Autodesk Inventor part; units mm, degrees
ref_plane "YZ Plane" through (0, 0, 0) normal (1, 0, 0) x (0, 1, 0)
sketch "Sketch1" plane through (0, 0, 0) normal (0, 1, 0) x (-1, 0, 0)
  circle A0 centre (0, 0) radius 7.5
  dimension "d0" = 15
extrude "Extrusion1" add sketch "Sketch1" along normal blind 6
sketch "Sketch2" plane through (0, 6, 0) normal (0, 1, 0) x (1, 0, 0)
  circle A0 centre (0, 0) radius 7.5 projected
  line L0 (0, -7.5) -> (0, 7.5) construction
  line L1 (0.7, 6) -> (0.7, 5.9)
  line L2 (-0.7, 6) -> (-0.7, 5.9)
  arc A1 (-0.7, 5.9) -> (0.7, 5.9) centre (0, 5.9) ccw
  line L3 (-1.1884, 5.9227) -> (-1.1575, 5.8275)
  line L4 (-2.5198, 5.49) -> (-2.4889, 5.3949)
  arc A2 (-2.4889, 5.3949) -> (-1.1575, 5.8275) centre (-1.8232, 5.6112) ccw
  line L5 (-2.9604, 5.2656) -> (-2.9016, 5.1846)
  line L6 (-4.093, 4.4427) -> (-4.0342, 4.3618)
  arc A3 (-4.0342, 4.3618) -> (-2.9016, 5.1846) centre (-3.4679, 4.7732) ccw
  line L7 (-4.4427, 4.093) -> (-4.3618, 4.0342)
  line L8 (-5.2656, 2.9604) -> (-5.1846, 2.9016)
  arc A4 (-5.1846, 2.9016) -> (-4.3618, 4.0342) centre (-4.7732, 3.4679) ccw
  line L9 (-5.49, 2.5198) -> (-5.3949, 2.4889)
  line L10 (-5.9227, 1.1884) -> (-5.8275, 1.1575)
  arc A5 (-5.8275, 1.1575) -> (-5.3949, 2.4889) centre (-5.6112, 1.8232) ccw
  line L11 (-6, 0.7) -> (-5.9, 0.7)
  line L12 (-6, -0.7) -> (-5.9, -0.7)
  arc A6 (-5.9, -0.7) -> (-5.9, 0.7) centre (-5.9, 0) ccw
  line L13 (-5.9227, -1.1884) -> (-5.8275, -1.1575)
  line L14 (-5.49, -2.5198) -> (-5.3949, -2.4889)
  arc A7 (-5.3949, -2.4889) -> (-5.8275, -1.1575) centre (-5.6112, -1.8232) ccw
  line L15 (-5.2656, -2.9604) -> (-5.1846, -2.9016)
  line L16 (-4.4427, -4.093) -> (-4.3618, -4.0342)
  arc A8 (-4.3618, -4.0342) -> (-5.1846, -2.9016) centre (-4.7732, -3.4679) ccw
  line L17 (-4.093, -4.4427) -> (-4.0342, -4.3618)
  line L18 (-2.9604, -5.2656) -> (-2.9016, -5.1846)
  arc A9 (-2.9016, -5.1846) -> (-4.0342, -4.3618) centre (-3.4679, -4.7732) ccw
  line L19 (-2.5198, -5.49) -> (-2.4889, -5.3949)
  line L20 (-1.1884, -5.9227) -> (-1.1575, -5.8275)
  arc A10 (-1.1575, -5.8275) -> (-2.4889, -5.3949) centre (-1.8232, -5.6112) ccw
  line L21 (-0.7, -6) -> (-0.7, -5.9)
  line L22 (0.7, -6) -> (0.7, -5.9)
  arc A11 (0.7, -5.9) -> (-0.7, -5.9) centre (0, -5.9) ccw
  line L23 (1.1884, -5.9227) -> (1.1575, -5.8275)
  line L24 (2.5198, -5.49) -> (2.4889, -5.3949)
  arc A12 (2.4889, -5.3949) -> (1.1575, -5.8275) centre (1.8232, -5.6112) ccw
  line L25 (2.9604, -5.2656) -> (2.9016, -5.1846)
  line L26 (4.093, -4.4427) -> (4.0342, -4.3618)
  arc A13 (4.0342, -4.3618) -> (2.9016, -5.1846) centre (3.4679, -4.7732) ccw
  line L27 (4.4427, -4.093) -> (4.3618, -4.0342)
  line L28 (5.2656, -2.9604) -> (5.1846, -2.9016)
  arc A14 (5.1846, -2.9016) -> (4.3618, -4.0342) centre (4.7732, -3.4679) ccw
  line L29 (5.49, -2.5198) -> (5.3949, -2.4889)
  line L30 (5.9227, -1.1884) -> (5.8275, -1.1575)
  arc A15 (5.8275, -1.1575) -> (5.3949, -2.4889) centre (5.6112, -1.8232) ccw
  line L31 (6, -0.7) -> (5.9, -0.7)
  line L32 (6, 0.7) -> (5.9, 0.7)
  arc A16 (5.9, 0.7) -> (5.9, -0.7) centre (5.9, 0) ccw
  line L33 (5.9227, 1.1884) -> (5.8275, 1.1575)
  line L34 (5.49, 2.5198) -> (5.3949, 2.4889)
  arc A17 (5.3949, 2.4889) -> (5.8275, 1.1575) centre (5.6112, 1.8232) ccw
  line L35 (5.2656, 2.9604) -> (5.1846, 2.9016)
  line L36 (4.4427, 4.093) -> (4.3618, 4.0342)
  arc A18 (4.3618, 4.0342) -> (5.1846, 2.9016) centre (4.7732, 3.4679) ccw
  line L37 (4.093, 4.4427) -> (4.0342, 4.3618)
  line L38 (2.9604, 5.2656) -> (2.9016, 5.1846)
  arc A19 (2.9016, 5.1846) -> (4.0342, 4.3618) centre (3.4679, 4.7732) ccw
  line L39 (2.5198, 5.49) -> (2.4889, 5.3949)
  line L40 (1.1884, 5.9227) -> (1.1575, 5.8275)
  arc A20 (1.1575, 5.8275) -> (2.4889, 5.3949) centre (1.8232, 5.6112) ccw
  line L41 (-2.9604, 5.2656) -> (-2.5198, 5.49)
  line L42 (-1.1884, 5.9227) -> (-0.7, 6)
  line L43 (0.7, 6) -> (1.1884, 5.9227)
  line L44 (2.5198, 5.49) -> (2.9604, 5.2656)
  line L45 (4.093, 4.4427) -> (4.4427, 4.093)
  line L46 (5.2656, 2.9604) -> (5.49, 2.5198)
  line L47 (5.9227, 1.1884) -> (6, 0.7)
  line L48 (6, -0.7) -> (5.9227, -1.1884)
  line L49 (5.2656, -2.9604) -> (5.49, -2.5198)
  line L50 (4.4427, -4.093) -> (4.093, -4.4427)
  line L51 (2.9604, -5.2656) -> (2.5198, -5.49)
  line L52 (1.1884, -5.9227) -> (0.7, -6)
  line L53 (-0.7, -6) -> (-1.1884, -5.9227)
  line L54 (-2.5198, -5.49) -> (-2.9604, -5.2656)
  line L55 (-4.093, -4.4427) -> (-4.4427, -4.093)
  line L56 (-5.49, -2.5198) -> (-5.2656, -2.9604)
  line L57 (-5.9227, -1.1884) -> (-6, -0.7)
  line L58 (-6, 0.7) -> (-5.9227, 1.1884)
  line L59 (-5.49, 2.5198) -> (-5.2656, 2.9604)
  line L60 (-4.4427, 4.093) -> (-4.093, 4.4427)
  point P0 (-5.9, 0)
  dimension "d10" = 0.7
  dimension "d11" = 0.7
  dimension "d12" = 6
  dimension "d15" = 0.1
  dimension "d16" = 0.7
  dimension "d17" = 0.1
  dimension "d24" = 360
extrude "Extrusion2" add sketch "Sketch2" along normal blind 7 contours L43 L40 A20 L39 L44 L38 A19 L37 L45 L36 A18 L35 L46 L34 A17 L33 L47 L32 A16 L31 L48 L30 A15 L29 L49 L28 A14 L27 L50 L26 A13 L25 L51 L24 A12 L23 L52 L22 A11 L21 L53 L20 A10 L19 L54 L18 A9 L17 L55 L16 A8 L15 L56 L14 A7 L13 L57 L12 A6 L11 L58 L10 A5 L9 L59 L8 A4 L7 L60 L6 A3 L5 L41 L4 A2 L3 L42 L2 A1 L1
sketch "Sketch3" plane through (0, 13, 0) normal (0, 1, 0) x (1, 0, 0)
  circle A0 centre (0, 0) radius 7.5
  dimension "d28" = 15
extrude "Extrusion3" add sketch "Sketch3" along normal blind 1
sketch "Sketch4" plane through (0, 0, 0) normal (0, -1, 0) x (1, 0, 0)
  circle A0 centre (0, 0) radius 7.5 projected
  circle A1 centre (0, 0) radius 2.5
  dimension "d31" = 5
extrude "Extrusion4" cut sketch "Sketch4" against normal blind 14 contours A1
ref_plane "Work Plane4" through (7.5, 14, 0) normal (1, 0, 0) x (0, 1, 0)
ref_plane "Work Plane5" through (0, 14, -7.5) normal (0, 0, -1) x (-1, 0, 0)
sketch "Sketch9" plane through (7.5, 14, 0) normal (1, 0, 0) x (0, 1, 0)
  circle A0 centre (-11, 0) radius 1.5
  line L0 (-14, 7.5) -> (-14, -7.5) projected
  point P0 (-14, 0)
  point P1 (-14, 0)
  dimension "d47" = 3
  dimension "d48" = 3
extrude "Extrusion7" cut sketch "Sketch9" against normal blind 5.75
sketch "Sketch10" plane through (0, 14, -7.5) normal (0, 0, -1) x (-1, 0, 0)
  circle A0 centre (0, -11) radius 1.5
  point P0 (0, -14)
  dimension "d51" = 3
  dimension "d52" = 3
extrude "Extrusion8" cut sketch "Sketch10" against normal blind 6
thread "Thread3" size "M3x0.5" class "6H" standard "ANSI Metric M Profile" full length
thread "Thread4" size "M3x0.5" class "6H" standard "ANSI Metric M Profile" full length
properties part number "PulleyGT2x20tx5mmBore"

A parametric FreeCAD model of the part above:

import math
import FreeCAD as App
import Part
import Sketcher

V = App.Vector
Q = App.Units.Quantity

doc = App.newDocument("Part")
body = doc.addObject("PartDesign::Body", "Body")

# Sketch on XZ plane
sketch1 = doc.addObject("Sketcher::SketchObject", "Sketch")
body.addObject(sketch1)
sketch1.AttachmentSupport = (doc.XZ_Plane, [""])
sketch1.MapMode = "FlatFace"
sketch1.addGeometry(Part.Circle(V(0, 0, 0), V(0, 0, 1), 8), False)
sketch1.addConstraint([
    Sketcher.Constraint("Coincident", 0, 3, -1, 1),
    Sketcher.Constraint("Diameter", 0, 15.0),
])
pad1 = doc.addObject("PartDesign::Pad", "Pad")
body.addObject(pad1)
pad1.Profile = sketch1
pad1.Length = 6
pad1.Reversed = True

# Sketch on XZ plane
sketch2 = doc.addObject("Sketcher::SketchObject", "Sketch001")
body.addObject(sketch2)
sketch2.AttachmentSupport = (doc.XZ_Plane, [""])
sketch2.MapMode = "FlatFace"
sketch2.AttachmentOffset = App.Placement(V(0, 0, -6), App.Rotation())
sketch2.addGeometry([
    Part.LineSegment(V(1.19, -5.92, 0), V(0.7, -6, 0)),  # 0
    Part.LineSegment(V(0.7, -6, 0), V(0.7, -5.9, 0)),  # 1
    Part.ArcOfCircle(Part.Circle(V(0, -5.9, 0), V(0, 0, 1), 0.7), math.radians(0), math.radians(180)),  # 2
    Part.LineSegment(V(-0.7, -5.9, 0), V(-0.7, -6, 0)),  # 3
    Part.LineSegment(V(-0.7, -6, 0), V(-1.19, -5.92, 0)),  # 4
    Part.LineSegment(V(-1.19, -5.92, 0), V(-1.16, -5.83, 0)),  # 5
    Part.ArcOfCircle(Part.Circle(V(-1.82, -5.61, 0), V(0, 0, 1), 0.7), math.radians(-18), math.radians(162)),  # 6
    Part.LineSegment(V(-2.49, -5.39, 0), V(-2.52, -5.49, 0)),  # 7
    Part.LineSegment(V(-2.52, -5.49, 0), V(-2.96, -5.27, 0)),  # 8
    Part.LineSegment(V(-2.96, -5.27, 0), V(-2.9, -5.18, 0)),  # 9
    Part.ArcOfCircle(Part.Circle(V(-3.47, -4.77, 0), V(0, 0, 1), 0.7), math.radians(-36), math.radians(144)),  # 10
    Part.LineSegment(V(-4.03, -4.36, 0), V(-4.09, -4.44, 0)),  # 11
    Part.LineSegment(V(-4.09, -4.44, 0), V(-4.44, -4.09, 0)),  # 12
    Part.LineSegment(V(-4.44, -4.09, 0), V(-4.36, -4.03, 0)),  # 13
    Part.ArcOfCircle(Part.Circle(V(-4.77, -3.47, 0), V(0, 0, 1), 0.7), math.radians(-54), math.radians(126)),  # 14
    Part.LineSegment(V(-5.18, -2.9, 0), V(-5.27, -2.96, 0)),  # 15
    Part.LineSegment(V(-5.27, -2.96, 0), V(-5.49, -2.52, 0)),  # 16
    Part.LineSegment(V(-5.49, -2.52, 0), V(-5.39, -2.49, 0)),  # 17
    Part.ArcOfCircle(Part.Circle(V(-5.61, -1.82, 0), V(0, 0, 1), 0.7), math.radians(-72), math.radians(108)),  # 18
    Part.LineSegment(V(-5.83, -1.16, 0), V(-5.92, -1.19, 0)),  # 19
    Part.LineSegment(V(-5.92, -1.19, 0), V(-6, -0.7, 0)),  # 20
    Part.LineSegment(V(-6, -0.7, 0), V(-5.9, -0.7, 0)),  # 21
    Part.ArcOfCircle(Part.Circle(V(-5.9, 0, 0), V(0, 0, 1), 0.7), math.radians(-90), math.radians(90)),  # 22
    Part.LineSegment(V(-5.9, 0.7, 0), V(-6, 0.7, 0)),  # 23
    Part.LineSegment(V(-6, 0.7, 0), V(-5.92, 1.19, 0)),  # 24
    Part.LineSegment(V(-5.92, 1.19, 0), V(-5.83, 1.16, 0)),  # 25
    Part.ArcOfCircle(Part.Circle(V(-5.61, 1.82, 0), V(0, 0, 1), 0.7), math.radians(-108), math.radians(72)),  # 26
    Part.LineSegment(V(-5.39, 2.49, 0), V(-5.49, 2.52, 0)),  # 27
    Part.LineSegment(V(-5.49, 2.52, 0), V(-5.27, 2.96, 0)),  # 28
    Part.LineSegment(V(-5.27, 2.96, 0), V(-5.18, 2.9, 0)),  # 29
    Part.ArcOfCircle(Part.Circle(V(-4.77, 3.47, 0), V(0, 0, 1), 0.7), math.radians(-126), math.radians(54)),  # 30
    Part.LineSegment(V(-4.36, 4.03, 0), V(-4.44, 4.09, 0)),  # 31
    Part.LineSegment(V(-4.44, 4.09, 0), V(-4.09, 4.44, 0)),  # 32
    Part.LineSegment(V(-4.09, 4.44, 0), V(-4.03, 4.36, 0)),  # 33
    Part.ArcOfCircle(Part.Circle(V(-3.47, 4.77, 0), V(0, 0, 1), 0.7), math.radians(-144), math.radians(36)),  # 34
    Part.LineSegment(V(-2.9, 5.18, 0), V(-2.96, 5.27, 0)),  # 35
    Part.LineSegment(V(-2.96, 5.27, 0), V(-2.52, 5.49, 0)),  # 36
    Part.LineSegment(V(-2.52, 5.49, 0), V(-2.49, 5.39, 0)),  # 37
    Part.ArcOfCircle(Part.Circle(V(-1.82, 5.61, 0), V(0, 0, 1), 0.7), math.radians(-162), math.radians(18)),  # 38
    Part.LineSegment(V(-1.16, 5.83, 0), V(-1.19, 5.92, 0)),  # 39
    Part.LineSegment(V(-1.19, 5.92, 0), V(-0.7, 6, 0)),  # 40
    Part.LineSegment(V(-0.7, 6, 0), V(-0.7, 5.9, 0)),  # 41
    Part.ArcOfCircle(Part.Circle(V(0, 5.9, 0), V(0, 0, 1), 0.7), math.radians(180), math.radians(360)),  # 42
    Part.LineSegment(V(0.7, 5.9, 0), V(0.7, 6, 0)),  # 43
    Part.LineSegment(V(0.7, 6, 0), V(1.19, 5.92, 0)),  # 44
    Part.LineSegment(V(1.19, 5.92, 0), V(1.16, 5.83, 0)),  # 45
    Part.ArcOfCircle(Part.Circle(V(1.82, 5.61, 0), V(0, 0, 1), 0.7), math.radians(162), math.radians(342)),  # 46
    Part.LineSegment(V(2.49, 5.39, 0), V(2.52, 5.49, 0)),  # 47
    Part.LineSegment(V(2.52, 5.49, 0), V(2.96, 5.27, 0)),  # 48
    Part.LineSegment(V(2.96, 5.27, 0), V(2.9, 5.18, 0)),  # 49
    Part.ArcOfCircle(Part.Circle(V(3.47, 4.77, 0), V(0, 0, 1), 0.7), math.radians(144), math.radians(324)),  # 50
    Part.LineSegment(V(4.03, 4.36, 0), V(4.09, 4.44, 0)),  # 51
    Part.LineSegment(V(4.09, 4.44, 0), V(4.44, 4.09, 0)),  # 52
    Part.LineSegment(V(4.44, 4.09, 0), V(4.36, 4.03, 0)),  # 53
    Part.ArcOfCircle(Part.Circle(V(4.77, 3.47, 0), V(0, 0, 1), 0.7), math.radians(126), math.radians(306)),  # 54
    Part.LineSegment(V(5.18, 2.9, 0), V(5.27, 2.96, 0)),  # 55
    Part.LineSegment(V(5.27, 2.96, 0), V(5.49, 2.52, 0)),  # 56
    Part.LineSegment(V(5.49, 2.52, 0), V(5.39, 2.49, 0)),  # 57
    Part.ArcOfCircle(Part.Circle(V(5.61, 1.82, 0), V(0, 0, 1), 0.7), math.radians(108), math.radians(288)),  # 58
    Part.LineSegment(V(5.83, 1.16, 0), V(5.92, 1.19, 0)),  # 59
    Part.LineSegment(V(5.92, 1.19, 0), V(6, 0.7, 0)),  # 60
    Part.LineSegment(V(6, 0.7, 0), V(5.9, 0.7, 0)),  # 61
    Part.ArcOfCircle(Part.Circle(V(5.9, 0, 0), V(0, 0, 1), 0.7), math.radians(90), math.radians(270)),  # 62
    Part.LineSegment(V(5.9, -0.7, 0), V(6, -0.7, 0)),  # 63
    Part.LineSegment(V(6, -0.7, 0), V(5.92, -1.19, 0)),  # 64
    Part.LineSegment(V(5.92, -1.19, 0), V(5.83, -1.16, 0)),  # 65
    Part.ArcOfCircle(Part.Circle(V(5.61, -1.82, 0), V(0, 0, 1), 0.7), math.radians(72), math.radians(252)),  # 66
    Part.LineSegment(V(5.39, -2.49, 0), V(5.49, -2.52, 0)),  # 67
    Part.LineSegment(V(5.49, -2.52, 0), V(5.27, -2.96, 0)),  # 68
    Part.LineSegment(V(5.27, -2.96, 0), V(5.18, -2.9, 0)),  # 69
    Part.ArcOfCircle(Part.Circle(V(4.77, -3.47, 0), V(0, 0, 1), 0.7), math.radians(54), math.radians(234)),  # 70
    Part.LineSegment(V(4.36, -4.03, 0), V(4.44, -4.09, 0)),  # 71
    Part.LineSegment(V(4.44, -4.09, 0), V(4.09, -4.44, 0)),  # 72
    Part.LineSegment(V(4.09, -4.44, 0), V(4.03, -4.36, 0)),  # 73
    Part.ArcOfCircle(Part.Circle(V(3.47, -4.77, 0), V(0, 0, 1), 0.7), math.radians(36), math.radians(216)),  # 74
    Part.LineSegment(V(2.9, -5.18, 0), V(2.96, -5.27, 0)),  # 75
    Part.LineSegment(V(2.96, -5.27, 0), V(2.52, -5.49, 0)),  # 76
    Part.LineSegment(V(2.52, -5.49, 0), V(2.49, -5.39, 0)),  # 77
    Part.ArcOfCircle(Part.Circle(V(1.82, -5.61, 0), V(0, 0, 1), 0.7), math.radians(18), math.radians(198)),  # 78
    Part.LineSegment(V(1.16, -5.83, 0), V(1.19, -5.92, 0)),  # 79
], False)
sketch2.addConstraint([
    Sketcher.Constraint("Coincident", 0, 2, 1, 1),
    Sketcher.Constraint("Tangent", 1, 2, 2, 1),
    Sketcher.Constraint("Tangent", 2, 2, 3, 1),
    Sketcher.Constraint("Coincident", 3, 2, 4, 1),
    Sketcher.Constraint("Coincident", 4, 2, 5, 1),
    Sketcher.Constraint("Tangent", 5, 2, 6, 1),
    Sketcher.Constraint("Tangent", 6, 2, 7, 1),
    Sketcher.Constraint("Coincident", 7, 2, 8, 1),
    Sketcher.Constraint("Coincident", 8, 2, 9, 1),
    Sketcher.Constraint("Tangent", 9, 2, 10, 1),
    Sketcher.Constraint("Tangent", 10, 2, 11, 1),
    Sketcher.Constraint("Coincident", 11, 2, 12, 1),
    Sketcher.Constraint("Coincident", 12, 2, 13, 1),
    Sketcher.Constraint("Tangent", 13, 2, 14, 1),
    Sketcher.Constraint("Tangent", 14, 2, 15, 1),
    Sketcher.Constraint("Coincident", 15, 2, 16, 1),
    Sketcher.Constraint("Coincident", 16, 2, 17, 1),
    Sketcher.Constraint("Tangent", 17, 2, 18, 1),
    Sketcher.Constraint("Tangent", 18, 2, 19, 1),
    Sketcher.Constraint("Coincident", 19, 2, 20, 1),
    Sketcher.Constraint("Coincident", 20, 2, 21, 1),
    Sketcher.Constraint("Tangent", 21, 2, 22, 1),
    Sketcher.Constraint("Tangent", 22, 2, 23, 1),
    Sketcher.Constraint("Coincident", 23, 2, 24, 1),
    Sketcher.Constraint("Coincident", 24, 2, 25, 1),
    Sketcher.Constraint("Tangent", 25, 2, 26, 1),
    Sketcher.Constraint("Tangent", 26, 2, 27, 1),
    Sketcher.Constraint("Coincident", 27, 2, 28, 1),
    Sketcher.Constraint("Coincident", 28, 2, 29, 1),
    Sketcher.Constraint("Tangent", 29, 2, 30, 1),
    Sketcher.Constraint("Tangent", 30, 2, 31, 1),
    Sketcher.Constraint("Coincident", 31, 2, 32, 1),
    Sketcher.Constraint("Coincident", 32, 2, 33, 1),
    Sketcher.Constraint("Tangent", 33, 2, 34, 1),
    Sketcher.Constraint("Tangent", 34, 2, 35, 1),
    Sketcher.Constraint("Coincident", 35, 2, 36, 1),
    Sketcher.Constraint("Coincident", 36, 2, 37, 1),
    Sketcher.Constraint("Tangent", 37, 2, 38, 1),
    Sketcher.Constraint("Tangent", 38, 2, 39, 1),
    Sketcher.Constraint("Coincident", 39, 2, 40, 1),
    Sketcher.Constraint("Coincident", 40, 2, 41, 1),
    Sketcher.Constraint("Tangent", 41, 2, 42, 1),
    Sketcher.Constraint("Tangent", 42, 2, 43, 1),
    Sketcher.Constraint("Coincident", 43, 2, 44, 1),
    Sketcher.Constraint("Coincident", 44, 2, 45, 1),
    Sketcher.Constraint("Tangent", 45, 2, 46, 1),
    Sketcher.Constraint("Tangent", 46, 2, 47, 1),
    Sketcher.Constraint("Coincident", 47, 2, 48, 1),
    Sketcher.Constraint("Coincident", 48, 2, 49, 1),
    Sketcher.Constraint("Tangent", 49, 2, 50, 1),
    Sketcher.Constraint("Tangent", 50, 2, 51, 1),
    Sketcher.Constraint("Coincident", 51, 2, 52, 1),
    Sketcher.Constraint("Coincident", 52, 2, 53, 1),
    Sketcher.Constraint("Tangent", 53, 2, 54, 1),
    Sketcher.Constraint("Tangent", 54, 2, 55, 1),
    Sketcher.Constraint("Coincident", 55, 2, 56, 1),
    Sketcher.Constraint("Coincident", 56, 2, 57, 1),
    Sketcher.Constraint("Tangent", 57, 2, 58, 1),
    Sketcher.Constraint("Tangent", 58, 2, 59, 1),
    Sketcher.Constraint("Coincident", 59, 2, 60, 1),
    Sketcher.Constraint("Coincident", 60, 2, 61, 1),
    Sketcher.Constraint("Tangent", 61, 2, 62, 1),
    Sketcher.Constraint("Tangent", 62, 2, 63, 1),
    Sketcher.Constraint("Coincident", 63, 2, 64, 1),
    Sketcher.Constraint("Coincident", 64, 2, 65, 1),
    Sketcher.Constraint("Tangent", 65, 2, 66, 1),
    Sketcher.Constraint("Tangent", 66, 2, 67, 1),
    Sketcher.Constraint("Coincident", 67, 2, 68, 1),
    Sketcher.Constraint("Coincident", 68, 2, 69, 1),
    Sketcher.Constraint("Tangent", 69, 2, 70, 1),
    Sketcher.Constraint("Tangent", 70, 2, 71, 1),
    Sketcher.Constraint("Coincident", 71, 2, 72, 1),
    Sketcher.Constraint("Coincident", 72, 2, 73, 1),
    Sketcher.Constraint("Tangent", 73, 2, 74, 1),
    Sketcher.Constraint("Tangent", 74, 2, 75, 1),
    Sketcher.Constraint("Coincident", 75, 2, 76, 1),
    Sketcher.Constraint("Coincident", 76, 2, 77, 1),
    Sketcher.Constraint("Tangent", 77, 2, 78, 1),
    Sketcher.Constraint("Tangent", 78, 2, 79, 1),
    Sketcher.Constraint("Coincident", 79, 2, 0, 1),
    Sketcher.Constraint("Vertical", 1),
    Sketcher.Constraint("Vertical", 3),
    Sketcher.Constraint("Horizontal", 21),
    Sketcher.Constraint("Horizontal", 23),
    Sketcher.Constraint("Vertical", 41),
    Sketcher.Constraint("Vertical", 43),
    Sketcher.Constraint("Horizontal", 61),
    Sketcher.Constraint("Horizontal", 63),
    Sketcher.Constraint("Equal", 2, 6),
    Sketcher.Constraint("Equal", 6, 10),
    Sketcher.Constraint("Equal", 10, 14),
    Sketcher.Constraint("Equal", 14, 18),
    Sketcher.Constraint("Equal", 18, 22),
    Sketcher.Constraint("Equal", 22, 26),
    Sketcher.Constraint("Equal", 26, 30),
    Sketcher.Constraint("Equal", 30, 34),
    Sketcher.Constraint("Equal", 34, 38),
    Sketcher.Constraint("Equal", 38, 42),
    Sketcher.Constraint("Equal", 42, 46),
    Sketcher.Constraint("Equal", 46, 50),
    Sketcher.Constraint("Equal", 50, 54),
    Sketcher.Constraint("Equal", 54, 58),
    Sketcher.Constraint("Equal", 58, 62),
    Sketcher.Constraint("Equal", 62, 66),
    Sketcher.Constraint("Equal", 66, 70),
    Sketcher.Constraint("Equal", 70, 74),
    Sketcher.Constraint("Equal", 74, 78),
    Sketcher.Constraint("Symmetric", 2, 3, 42, 3, -1, 1),
    Sketcher.Constraint("Symmetric", 6, 3, 46, 3, -1, 1),
    Sketcher.Constraint("Symmetric", 10, 3, 50, 3, -1, 1),
    Sketcher.Constraint("Symmetric", 14, 3, 54, 3, -1, 1),
    Sketcher.Constraint("Symmetric", 18, 3, 58, 3, -1, 1),
    Sketcher.Constraint("Symmetric", 22, 3, 62, 3, -1, 1),
    Sketcher.Constraint("Symmetric", 26, 3, 66, 3, -1, 1),
    Sketcher.Constraint("Symmetric", 30, 3, 70, 3, -1, 1),
    Sketcher.Constraint("Symmetric", 34, 3, 74, 3, -1, 1),
    Sketcher.Constraint("Symmetric", 38, 3, 78, 3, -1, 1),
    Sketcher.Constraint("Symmetric", 4, 2, 44, 2, -1, 1),
    Sketcher.Constraint("Symmetric", 7, 2, 47, 2, -1, 1),
    Sketcher.Constraint("Symmetric", 8, 2, 48, 2, -1, 1),
    Sketcher.Constraint("Symmetric", 11, 2, 51, 2, -1, 1),
    Sketcher.Constraint("Symmetric", 12, 2, 52, 2, -1, 1),
    Sketcher.Constraint("Symmetric", 15, 2, 55, 2, -1, 1),
    Sketcher.Constraint("Symmetric", 16, 2, 56, 2, -1, 1),
    Sketcher.Constraint("Symmetric", 19, 2, 59, 2, -1, 1),
    Sketcher.Constraint("Symmetric", 24, 2, 64, 2, -1, 1),
    Sketcher.Constraint("Symmetric", 27, 2, 67, 2, -1, 1),
    Sketcher.Constraint("Symmetric", 28, 2, 68, 2, -1, 1),
    Sketcher.Constraint("Symmetric", 31, 2, 71, 2, -1, 1),
    Sketcher.Constraint("Symmetric", 32, 2, 72, 2, -1, 1),
    Sketcher.Constraint("Symmetric", 35, 2, 75, 2, -1, 1),
    Sketcher.Constraint("Symmetric", 36, 2, 76, 2, -1, 1),
    Sketcher.Constraint("Symmetric", 39, 2, 79, 2, -1, 1),
    Sketcher.Constraint("Symmetric", 38, 3, 46, 3, -2),
    Sketcher.Constraint("Symmetric", 34, 3, 50, 3, -2),
    Sketcher.Constraint("Symmetric", 30, 3, 54, 3, -2),
    Sketcher.Constraint("Symmetric", 26, 3, 58, 3, -2),
    Sketcher.Constraint("Symmetric", 0, 2, 3, 2, -2),
    Sketcher.Constraint("Symmetric", 39, 2, 44, 2, -2),
    Sketcher.Constraint("Symmetric", 36, 2, 47, 2, -2),
    Sketcher.Constraint("Symmetric", 35, 2, 48, 2, -2),
    Sketcher.Constraint("Symmetric", 32, 2, 51, 2, -2),
    Sketcher.Constraint("Symmetric", 31, 2, 52, 2, -2),
    Sketcher.Constraint("Symmetric", 28, 2, 55, 2, -2),
    Sketcher.Constraint("Symmetric", 27, 2, 56, 2, -2),
    Sketcher.Constraint("Symmetric", 24, 2, 59, 2, -2),
    Sketcher.Constraint("Symmetric", 23, 2, 60, 2, -2),
    Sketcher.Constraint("Parallel", 5, 7),
    Sketcher.Constraint("Parallel", 17, 19),
    Sketcher.Constraint("Perpendicular", 0, 20),
    Sketcher.Constraint("Perpendicular", 4, 24),
    Sketcher.Constraint("Perpendicular", 7, 25),
    Sketcher.Constraint("Perpendicular", 8, 28),
    Sketcher.Constraint("Perpendicular", 9, 29),
    Sketcher.Constraint("Perpendicular", 11, 31),
    Sketcher.Constraint("Perpendicular", 12, 32),
    Sketcher.Constraint("Perpendicular", 20, 40),
    Sketcher.Constraint("Perpendicular", 24, 44),
    Sketcher.Constraint("Perpendicular", 44, 64),
    Sketcher.Constraint("Equal", 63, 1),
    Sketcher.Constraint("Equal", 5, 7),
    Sketcher.Constraint("Equal", 4, 8),
    Sketcher.Constraint("Equal", 7, 9),
    Sketcher.Constraint("Equal", 9, 11),
    Sketcher.Constraint("Equal", 8, 12),
    Sketcher.Constraint("Equal", 11, 13),
    Sketcher.Constraint("Equal", 13, 15),
    Sketcher.Constraint("Equal", 12, 16),
    Sketcher.Constraint("Equal", 15, 17),
    Sketcher.Constraint("Equal", 17, 19),
    Sketcher.Constraint("Equal", 16, 20),
    Sketcher.Constraint("Radius", 2, 0.7),
    Sketcher.Constraint("DistanceX", 21, 1, 21, 2, 0.1),
    Sketcher.Constraint("DistanceY", 0, 2, -1, 1, 6.0),
    Sketcher.Constraint("Distance", 5, 0.1),
    Sketcher.Constraint("Angle", 7, Q("-108 deg")),
    Sketcher.Constraint("Angle", 8, Q("153.01 deg")),
    Sketcher.Constraint("Angle", 11, Q("-126.0105 deg")),
    Sketcher.Constraint("DistanceY", 7, 2, -1, 1, 5.49),
    Sketcher.Constraint("DistanceX", 10, 3, -1, 1, 3.468),
])
pad2 = doc.addObject("PartDesign::Pad", "Pad001")
body.addObject(pad2)
pad2.Profile = sketch2
pad2.Length = 7
pad2.Reversed = True

# Sketch on XZ plane
sketch3 = doc.addObject("Sketcher::SketchObject", "Sketch002")
body.addObject(sketch3)
sketch3.AttachmentSupport = (doc.XZ_Plane, [""])
sketch3.MapMode = "FlatFace"
sketch3.AttachmentOffset = App.Placement(V(0, 0, -13), App.Rotation())
sketch3.addGeometry(Part.Circle(V(0, 0, 0), V(0, 0, 1), 8), False)
sketch3.addConstraint([
    Sketcher.Constraint("Coincident", 0, 3, -1, 1),
    Sketcher.Constraint("Diameter", 0, 15.0),
])
pad3 = doc.addObject("PartDesign::Pad", "Pad002")
body.addObject(pad3)
pad3.Profile = sketch3
pad3.Length = 1
pad3.Reversed = True

# Sketch on XZ plane
sketch4 = doc.addObject("Sketcher::SketchObject", "Sketch003")
body.addObject(sketch4)
sketch4.AttachmentSupport = (doc.XZ_Plane, [""])
sketch4.MapMode = "FlatFace"
sketch4.addGeometry(Part.Circle(V(0, 0, 0), V(0, 0, 1), 2.5), False)
sketch4.addConstraint([
    Sketcher.Constraint("Coincident", 0, 3, -1, 1),
    Sketcher.Constraint("Diameter", 0, 5.0),
])
pocket1 = doc.addObject("PartDesign::Pocket", "Pocket")
body.addObject(pocket1)
pocket1.Profile = sketch4
pocket1.Length = 14

# Sketch on YZ plane
sketch5 = doc.addObject("Sketcher::SketchObject", "Sketch004")
body.addObject(sketch5)
sketch5.AttachmentSupport = (doc.YZ_Plane, [""])
sketch5.MapMode = "FlatFace"
sketch5.AttachmentOffset = App.Placement(V(0, 0, 7.5), App.Rotation())
sketch5.addGeometry(Part.Circle(V(3, 0, 0), V(0, 0, 1), 1.5), False)
sketch5.addConstraint([
    Sketcher.Constraint("PointOnObject", 0, 3, -1),
    Sketcher.Constraint("Diameter", 0, 3.0),
    Sketcher.Constraint("DistanceX", -1, 1, 0, 3, 3.0),
])
pocket2 = doc.addObject("PartDesign::Pocket", "Pocket001")
body.addObject(pocket2)
pocket2.Profile = sketch5
pocket2.Length = 5.75

# Sketch on XY plane
sketch6 = doc.addObject("Sketcher::SketchObject", "Sketch005")
body.addObject(sketch6)
sketch6.AttachmentSupport = (doc.XY_Plane, [""])
sketch6.MapMode = "FlatFace"
sketch6.AttachmentOffset = App.Placement(V(0, 0, -7.5), App.Rotation())
sketch6.addGeometry(Part.Circle(V(0, 3, 0), V(0, 0, 1), 1.5), False)
sketch6.addConstraint([
    Sketcher.Constraint("PointOnObject", 0, 3, -2),
    Sketcher.Constraint("Diameter", 0, 3.0),
    Sketcher.Constraint("DistanceY", -1, 1, 0, 3, 3.0),
])
pocket3 = doc.addObject("PartDesign::Pocket", "Pocket002")
body.addObject(pocket3)
pocket3.Profile = sketch6
pocket3.Length = 6
pocket3.Reversed = True

doc.recompute()
